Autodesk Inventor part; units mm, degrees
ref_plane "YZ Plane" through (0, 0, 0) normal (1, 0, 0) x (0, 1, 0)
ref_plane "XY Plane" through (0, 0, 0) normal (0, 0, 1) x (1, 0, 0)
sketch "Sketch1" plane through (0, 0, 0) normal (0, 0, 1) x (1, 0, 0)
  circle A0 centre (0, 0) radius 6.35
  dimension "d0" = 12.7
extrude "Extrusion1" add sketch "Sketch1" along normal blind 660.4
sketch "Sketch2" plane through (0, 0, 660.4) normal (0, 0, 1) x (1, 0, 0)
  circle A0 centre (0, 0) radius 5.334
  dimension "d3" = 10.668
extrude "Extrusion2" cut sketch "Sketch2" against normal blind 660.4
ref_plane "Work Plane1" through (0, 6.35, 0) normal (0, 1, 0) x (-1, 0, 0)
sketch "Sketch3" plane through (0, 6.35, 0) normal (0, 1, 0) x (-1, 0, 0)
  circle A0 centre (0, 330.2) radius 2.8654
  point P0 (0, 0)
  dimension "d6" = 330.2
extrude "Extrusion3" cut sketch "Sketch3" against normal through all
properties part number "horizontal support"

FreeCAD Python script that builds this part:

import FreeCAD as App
import Part
import Sketcher
from FreeCAD import Vector
Q = App.Units.Quantity

doc = App.newDocument("Part")
body = doc.addObject("PartDesign::Body", "Body")

sketch1 = body.newObject("Sketcher::SketchObject", "Sketch")
sketch1.AttachmentSupport = (doc.getObject("XY_Plane"), [""])
sketch1.MapMode = "FlatFace"
sketch1.addGeometry(Part.Circle(Vector(0, 0, 0), Vector(0, 0, 1), 6), False)
sketch1.addConstraint(Sketcher.Constraint("Coincident", 0, 3, -1, 1))
sketch1.addConstraint(Sketcher.Constraint("Diameter", 0, Q("0.5 in")))
pad1 = body.newObject("PartDesign::Pad", "Pad")
pad1.Profile = sketch1
pad1.Length = Q("26 in")

sketch2 = body.newObject("Sketcher::SketchObject", "Sketch001")
sketch2.AttachmentSupport = (doc.getObject("XY_Plane"), [""])
sketch2.MapMode = "FlatFace"
sketch2.AttachmentOffset = App.Placement(Vector(0, 0, 26 * 25.4), App.Rotation())
sketch2.addGeometry(Part.Circle(Vector(0, 0, 0), Vector(0, 0, 1), 5), False)
sketch2.addConstraint(Sketcher.Constraint("Coincident", 0, 3, -1, 1))
sketch2.addConstraint(Sketcher.Constraint("Diameter", 0, Q("0.42 in")))
pocket1 = body.newObject("PartDesign::Pocket", "Pocket")
pocket1.Profile = sketch2
pocket1.Length = Q("26 in")

sketch3 = body.newObject("Sketcher::SketchObject", "Sketch002")
sketch3.AttachmentSupport = (doc.getObject("XZ_Plane"), [""])
sketch3.MapMode = "FlatFace"
sketch3.AttachmentOffset = App.Placement(Vector(0, 0, -0.25 * 25.4), App.Rotation())
sketch3.addGeometry(Part.Circle(Vector(0, 330.2, 0), Vector(0, 0, 1), 2.9), False)
sketch3.addConstraint(Sketcher.Constraint("PointOnObject", 0, 3, -2))
sketch3.addConstraint(Sketcher.Constraint("DistanceY", -1, 1, 0, 3, Q("13 in")))
sketch3.addConstraint(Sketcher.Constraint("Diameter", 0, 5.7308))
pocket2 = body.newObject("PartDesign::Pocket", "Pocket001")
pocket2.Profile = sketch3
pocket2.Type = "ThroughAll"
pocket2.Reversed = True

doc.recompute()
